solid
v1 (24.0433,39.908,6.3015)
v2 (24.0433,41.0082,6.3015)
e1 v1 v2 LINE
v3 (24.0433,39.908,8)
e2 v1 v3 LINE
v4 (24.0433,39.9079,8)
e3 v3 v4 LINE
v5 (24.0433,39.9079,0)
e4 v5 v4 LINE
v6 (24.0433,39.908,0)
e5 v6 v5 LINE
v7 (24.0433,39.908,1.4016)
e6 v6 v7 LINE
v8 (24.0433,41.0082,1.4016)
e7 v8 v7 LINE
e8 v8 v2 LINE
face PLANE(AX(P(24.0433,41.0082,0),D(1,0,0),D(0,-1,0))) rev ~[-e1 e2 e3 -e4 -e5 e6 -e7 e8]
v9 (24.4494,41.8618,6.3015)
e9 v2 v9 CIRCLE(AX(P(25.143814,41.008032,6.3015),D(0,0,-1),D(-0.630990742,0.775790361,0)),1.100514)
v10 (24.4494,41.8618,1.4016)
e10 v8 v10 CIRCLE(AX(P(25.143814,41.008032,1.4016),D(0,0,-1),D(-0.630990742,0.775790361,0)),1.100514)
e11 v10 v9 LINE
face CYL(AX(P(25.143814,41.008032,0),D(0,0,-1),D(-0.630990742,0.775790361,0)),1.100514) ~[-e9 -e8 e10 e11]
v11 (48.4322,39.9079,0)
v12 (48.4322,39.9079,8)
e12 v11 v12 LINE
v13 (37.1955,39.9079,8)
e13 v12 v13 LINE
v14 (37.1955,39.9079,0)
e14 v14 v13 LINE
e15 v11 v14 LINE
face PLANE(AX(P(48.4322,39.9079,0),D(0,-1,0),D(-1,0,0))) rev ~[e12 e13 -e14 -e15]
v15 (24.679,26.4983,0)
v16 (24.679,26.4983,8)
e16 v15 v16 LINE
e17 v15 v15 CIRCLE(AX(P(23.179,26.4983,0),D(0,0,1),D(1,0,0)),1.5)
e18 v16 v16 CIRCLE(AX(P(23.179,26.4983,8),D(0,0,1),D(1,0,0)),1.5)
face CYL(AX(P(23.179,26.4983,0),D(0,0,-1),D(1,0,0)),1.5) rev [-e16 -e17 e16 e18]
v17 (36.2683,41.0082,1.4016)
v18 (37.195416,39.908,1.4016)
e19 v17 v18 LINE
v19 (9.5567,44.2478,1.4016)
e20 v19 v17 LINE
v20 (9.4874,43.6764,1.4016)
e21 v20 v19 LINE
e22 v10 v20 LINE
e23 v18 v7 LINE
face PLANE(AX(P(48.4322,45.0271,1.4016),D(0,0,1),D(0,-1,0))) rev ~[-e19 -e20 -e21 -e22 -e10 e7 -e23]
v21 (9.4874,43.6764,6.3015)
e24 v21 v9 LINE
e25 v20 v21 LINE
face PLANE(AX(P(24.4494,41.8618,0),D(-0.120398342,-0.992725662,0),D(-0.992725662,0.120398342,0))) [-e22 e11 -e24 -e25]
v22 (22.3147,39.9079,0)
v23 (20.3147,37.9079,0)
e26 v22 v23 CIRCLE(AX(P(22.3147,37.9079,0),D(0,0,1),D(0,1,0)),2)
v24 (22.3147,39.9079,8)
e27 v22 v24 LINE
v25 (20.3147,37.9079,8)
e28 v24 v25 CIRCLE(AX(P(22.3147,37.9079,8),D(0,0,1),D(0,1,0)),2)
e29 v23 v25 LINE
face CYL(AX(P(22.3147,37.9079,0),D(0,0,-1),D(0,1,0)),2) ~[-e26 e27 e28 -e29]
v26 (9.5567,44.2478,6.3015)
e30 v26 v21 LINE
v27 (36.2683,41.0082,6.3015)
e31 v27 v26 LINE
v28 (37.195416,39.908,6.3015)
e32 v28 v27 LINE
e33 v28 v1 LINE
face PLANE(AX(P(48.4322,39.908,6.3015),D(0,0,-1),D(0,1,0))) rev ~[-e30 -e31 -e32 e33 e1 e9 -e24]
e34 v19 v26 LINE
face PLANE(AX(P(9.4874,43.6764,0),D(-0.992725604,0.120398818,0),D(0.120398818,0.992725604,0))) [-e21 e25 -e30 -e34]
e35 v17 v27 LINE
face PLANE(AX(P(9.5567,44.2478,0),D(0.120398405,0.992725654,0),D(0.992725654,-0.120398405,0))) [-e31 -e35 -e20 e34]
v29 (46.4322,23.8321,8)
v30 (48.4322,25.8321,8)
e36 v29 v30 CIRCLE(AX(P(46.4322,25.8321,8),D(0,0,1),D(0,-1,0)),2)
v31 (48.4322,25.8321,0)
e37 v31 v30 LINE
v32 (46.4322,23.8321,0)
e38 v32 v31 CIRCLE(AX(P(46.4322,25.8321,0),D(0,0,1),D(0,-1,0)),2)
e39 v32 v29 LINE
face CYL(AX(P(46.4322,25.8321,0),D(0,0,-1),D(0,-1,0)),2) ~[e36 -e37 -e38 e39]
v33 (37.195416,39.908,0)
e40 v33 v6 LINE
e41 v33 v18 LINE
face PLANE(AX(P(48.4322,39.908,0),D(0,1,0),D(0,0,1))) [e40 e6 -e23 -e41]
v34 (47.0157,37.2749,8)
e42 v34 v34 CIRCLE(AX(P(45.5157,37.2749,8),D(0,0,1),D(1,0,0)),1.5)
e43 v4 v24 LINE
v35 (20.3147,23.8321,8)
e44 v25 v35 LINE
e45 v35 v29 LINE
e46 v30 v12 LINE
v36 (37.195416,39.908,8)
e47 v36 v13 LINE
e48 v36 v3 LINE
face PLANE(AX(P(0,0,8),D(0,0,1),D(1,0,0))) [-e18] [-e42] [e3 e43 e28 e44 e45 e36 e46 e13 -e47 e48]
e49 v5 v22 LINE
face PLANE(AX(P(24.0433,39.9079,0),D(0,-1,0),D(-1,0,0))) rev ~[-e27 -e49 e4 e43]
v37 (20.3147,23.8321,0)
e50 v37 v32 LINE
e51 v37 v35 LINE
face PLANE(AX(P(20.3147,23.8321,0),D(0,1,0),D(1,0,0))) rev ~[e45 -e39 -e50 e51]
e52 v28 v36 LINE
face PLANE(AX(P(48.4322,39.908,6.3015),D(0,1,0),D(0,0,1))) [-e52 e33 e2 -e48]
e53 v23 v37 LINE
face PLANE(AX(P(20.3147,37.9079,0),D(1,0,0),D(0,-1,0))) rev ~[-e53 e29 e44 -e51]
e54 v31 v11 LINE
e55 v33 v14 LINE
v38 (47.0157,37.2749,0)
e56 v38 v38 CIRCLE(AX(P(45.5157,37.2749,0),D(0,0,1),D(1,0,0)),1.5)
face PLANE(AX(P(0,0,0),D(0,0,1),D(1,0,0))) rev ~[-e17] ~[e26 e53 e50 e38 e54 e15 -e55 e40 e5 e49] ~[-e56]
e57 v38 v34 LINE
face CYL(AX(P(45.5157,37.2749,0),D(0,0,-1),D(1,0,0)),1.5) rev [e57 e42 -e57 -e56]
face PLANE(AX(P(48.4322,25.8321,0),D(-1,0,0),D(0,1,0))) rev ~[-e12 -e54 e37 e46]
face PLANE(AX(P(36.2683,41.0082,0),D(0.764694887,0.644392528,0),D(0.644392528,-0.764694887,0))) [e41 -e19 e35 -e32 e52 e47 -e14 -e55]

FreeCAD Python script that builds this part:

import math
import FreeCAD as App
import Part
import Sketcher

V = App.Vector
Q = App.Units.Quantity

doc = App.newDocument("Part")
body = doc.addObject("PartDesign::Body", "Body")

# Sketch on XY plane
sketch1 = doc.addObject("Sketcher::SketchObject", "Sketch")
body.addObject(sketch1)
sketch1.AttachmentSupport = (doc.XY_Plane, [""])
sketch1.MapMode = "FlatFace"
sketch1.addGeometry([
    Part.LineSegment(V(20.3, 37.9, 0), V(20.3, 23.8, 0)),  # 0
    Part.LineSegment(V(20.3, 23.8, 0), V(46.4, 23.8, 0)),  # 1
    Part.ArcOfCircle(Part.Circle(V(46.4, 25.8, 0), V(0, 0, 1), 2), math.radians(-90), math.radians(0)),  # 2
    Part.LineSegment(V(48.4, 25.8, 0), V(48.4, 39.9, 0)),  # 3
    Part.LineSegment(V(48.4, 39.9, 0), V(37.2, 39.9, 0)),  # 4
    Part.LineSegment(V(37.2, 39.9, 0), V(36.3, 41, 0)),  # 5
    Part.LineSegment(V(36.3, 41, 0), V(9.6, 44.2, 0)),  # 6
    Part.LineSegment(V(9.6, 44.2, 0), V(9.5, 43.7, 0)),  # 7
    Part.LineSegment(V(9.5, 43.7, 0), V(24.4, 41.9, 0)),  # 8
    Part.ArcOfCircle(Part.Circle(V(25.1, 41, 0), V(0, 0, 1), 1.1), math.radians(129), math.radians(180)),  # 9
    Part.LineSegment(V(24, 41, 0), V(24, 39.9, 0)),  # 10
    Part.LineSegment(V(24, 39.9, 0), V(22.3, 39.9, 0)),  # 11
    Part.ArcOfCircle(Part.Circle(V(22.3, 37.9, 0), V(0, 0, 1), 2), math.radians(90), math.radians(180)),  # 12
    Part.Circle(V(23.2, 26.5, 0), V(0, 0, 1), 1.5),  # 13
    Part.Circle(V(45.5, 37.3, 0), V(0, 0, 1), 1.5),  # 14
], False)
sketch1.addConstraint([
    Sketcher.Constraint("Coincident", 0, 2, 1, 1),
    Sketcher.Constraint("Tangent", 1, 2, 2, 1),
    Sketcher.Constraint("Tangent", 2, 2, 3, 1),
    Sketcher.Constraint("Coincident", 3, 2, 4, 1),
    Sketcher.Constraint("Coincident", 4, 2, 5, 1),
    Sketcher.Constraint("Coincident", 5, 2, 6, 1),
    Sketcher.Constraint("Coincident", 6, 2, 7, 1),
    Sketcher.Constraint("Coincident", 7, 2, 8, 1),
    Sketcher.Constraint("Coincident", 8, 2, 9, 1),
    Sketcher.Constraint("Tangent", 9, 2, 10, 1),
    Sketcher.Constraint("Coincident", 10, 2, 11, 1),
    Sketcher.Constraint("Tangent", 11, 2, 12, 1),
    Sketcher.Constraint("Tangent", 12, 2, 0, 1),
    Sketcher.Constraint("Vertical", 0),
    Sketcher.Constraint("Horizontal", 1),
    Sketcher.Constraint("Vertical", 3),
    Sketcher.Constraint("Horizontal", 4),
    Sketcher.Constraint("Vertical", 10),
    Sketcher.Constraint("Horizontal", 11),
    Sketcher.Constraint("Equal", 2, 12),
    Sketcher.Constraint("Equal", 13, 14),
    Sketcher.Constraint("Perpendicular", 6, 7),
    Sketcher.Constraint("Perpendicular", 7, 8),
    Sketcher.Constraint("Horizontal", 9, 3, 5, 2),
    Sketcher.Constraint("Horizontal", 4, 2, 10, 2),
    Sketcher.Constraint("Diameter", 13, 3.0),
    Sketcher.Constraint("Radius", 2, 2.0),
    Sketcher.Constraint("Angle", 5, Q("130.1201 deg")),
    Sketcher.Constraint("Radius", 9, 1.1002),
    Sketcher.Constraint("DistanceY", 13, 3, 9, 3, 14.51),
    Sketcher.Constraint("DistanceY", 12, 3, 6, 2, 6.34),
    Sketcher.Constraint("DistanceX", 1, 1, 1, 2, 26.1175),
    Sketcher.Constraint("DistanceX", 4, 2, 4, 1, 11.2367),
    Sketcher.Constraint("DistanceX", 11, 2, 11, 1, 1.7286),
    Sketcher.Constraint("DistanceY", 0, 2, 0, 1, 14.0758),
    Sketcher.Constraint("DistanceY", 10, 2, 10, 1, 1.1003),
    Sketcher.Constraint("DistanceY", -1, 1, 2, 3, 25.832),
    Sketcher.Constraint("DistanceX", -1, 1, 13, 3, 23.179),
    Sketcher.Constraint("DistanceY", -1, 1, 14, 3, 37.275),
    Sketcher.Constraint("DistanceX", 9, 3, 14, 3, 20.372),
    Sketcher.Constraint("DistanceX", 6, 2, 12, 3, 12.758),
    Sketcher.Constraint("DistanceY", 13, 3, 7, 2, 17.178),
    Sketcher.Constraint("DistanceX", -1, 1, 2, 3, 46.4322),
])
pad1 = doc.addObject("PartDesign::Pad", "Pad")
body.addObject(pad1)
pad1.Profile = sketch1
pad1.Length = 8

# Sketch on YZ plane
sketch2 = doc.addObject("Sketcher::SketchObject", "Sketch001")
body.addObject(sketch2)
sketch2.AttachmentSupport = (doc.YZ_Plane, [""])
sketch2.MapMode = "FlatFace"
sketch2.AttachmentOffset = App.Placement(V(0, 0, 48.4322), App.Rotation())
sketch2.addGeometry([
    Part.LineSegment(V(39.9, 1.4, 0), V(39.9, -1.9, 0)),  # 0
    Part.LineSegment(V(39.9, -1.9, 0), V(47.3, -1.9, 0)),  # 1
    Part.LineSegment(V(47.3, -1.9, 0), V(47.3, 9.1, 0)),  # 2
    Part.LineSegment(V(47.3, 9.1, 0), V(39.9, 9.1, 0)),  # 3
    Part.LineSegment(V(39.9, 9.1, 0), V(39.9, 6.3, 0)),  # 4
    Part.LineSegment(V(39.9, 6.3, 0), V(45, 6.3, 0)),  # 5
    Part.LineSegment(V(45, 6.3, 0), V(45, 1.4, 0)),  # 6
    Part.LineSegment(V(45, 1.4, 0), V(39.9, 1.4, 0)),  # 7
], False)
sketch2.addConstraint([
    Sketcher.Constraint("Coincident", 0, 2, 1, 1),
    Sketcher.Constraint("Coincident", 1, 2, 2, 1),
    Sketcher.Constraint("Coincident", 2, 2, 3, 1),
    Sketcher.Constraint("Coincident", 3, 2, 4, 1),
    Sketcher.Constraint("Coincident", 4, 2, 5, 1),
    Sketcher.Constraint("Coincident", 5, 2, 6, 1),
    Sketcher.Constraint("Coincident", 6, 2, 7, 1),
    Sketcher.Constraint("Coincident", 7, 2, 0, 1),
    Sketcher.Constraint("Vertical", 0),
    Sketcher.Constraint("Horizontal", 1),
    Sketcher.Constraint("Vertical", 2),
    Sketcher.Constraint("Horizontal", 3),
    Sketcher.Constraint("Vertical", 4),
    Sketcher.Constraint("Horizontal", 5),
    Sketcher.Constraint("Vertical", 6),
    Sketcher.Constraint("Horizontal", 7),
    Sketcher.Constraint("Vertical", 0, 2, 3, 2),
    Sketcher.Constraint("DistanceY", 6, 2, 6, 1, 4.9),
    Sketcher.Constraint("DistanceX", 5, 1, 5, 2, 5.119),
    Sketcher.Constraint("DistanceY", 4, 2, 4, 1, 2.821),
    Sketcher.Constraint("DistanceX", 1, 1, 1, 2, 7.4205),
    Sketcher.Constraint("DistanceY", 0, 2, 0, 1, 3.2666),
    Sketcher.Constraint("DistanceX", -1, 1, 0, 2, 39.908),
    Sketcher.Constraint("DistanceY", 0, 2, -1, 1, 1.865),
])
pocket1 = doc.addObject("PartDesign::Pocket", "Pocket")
body.addObject(pocket1)
pocket1.Profile = sketch2
pocket1.Type = "ThroughAll"

doc.recompute()
